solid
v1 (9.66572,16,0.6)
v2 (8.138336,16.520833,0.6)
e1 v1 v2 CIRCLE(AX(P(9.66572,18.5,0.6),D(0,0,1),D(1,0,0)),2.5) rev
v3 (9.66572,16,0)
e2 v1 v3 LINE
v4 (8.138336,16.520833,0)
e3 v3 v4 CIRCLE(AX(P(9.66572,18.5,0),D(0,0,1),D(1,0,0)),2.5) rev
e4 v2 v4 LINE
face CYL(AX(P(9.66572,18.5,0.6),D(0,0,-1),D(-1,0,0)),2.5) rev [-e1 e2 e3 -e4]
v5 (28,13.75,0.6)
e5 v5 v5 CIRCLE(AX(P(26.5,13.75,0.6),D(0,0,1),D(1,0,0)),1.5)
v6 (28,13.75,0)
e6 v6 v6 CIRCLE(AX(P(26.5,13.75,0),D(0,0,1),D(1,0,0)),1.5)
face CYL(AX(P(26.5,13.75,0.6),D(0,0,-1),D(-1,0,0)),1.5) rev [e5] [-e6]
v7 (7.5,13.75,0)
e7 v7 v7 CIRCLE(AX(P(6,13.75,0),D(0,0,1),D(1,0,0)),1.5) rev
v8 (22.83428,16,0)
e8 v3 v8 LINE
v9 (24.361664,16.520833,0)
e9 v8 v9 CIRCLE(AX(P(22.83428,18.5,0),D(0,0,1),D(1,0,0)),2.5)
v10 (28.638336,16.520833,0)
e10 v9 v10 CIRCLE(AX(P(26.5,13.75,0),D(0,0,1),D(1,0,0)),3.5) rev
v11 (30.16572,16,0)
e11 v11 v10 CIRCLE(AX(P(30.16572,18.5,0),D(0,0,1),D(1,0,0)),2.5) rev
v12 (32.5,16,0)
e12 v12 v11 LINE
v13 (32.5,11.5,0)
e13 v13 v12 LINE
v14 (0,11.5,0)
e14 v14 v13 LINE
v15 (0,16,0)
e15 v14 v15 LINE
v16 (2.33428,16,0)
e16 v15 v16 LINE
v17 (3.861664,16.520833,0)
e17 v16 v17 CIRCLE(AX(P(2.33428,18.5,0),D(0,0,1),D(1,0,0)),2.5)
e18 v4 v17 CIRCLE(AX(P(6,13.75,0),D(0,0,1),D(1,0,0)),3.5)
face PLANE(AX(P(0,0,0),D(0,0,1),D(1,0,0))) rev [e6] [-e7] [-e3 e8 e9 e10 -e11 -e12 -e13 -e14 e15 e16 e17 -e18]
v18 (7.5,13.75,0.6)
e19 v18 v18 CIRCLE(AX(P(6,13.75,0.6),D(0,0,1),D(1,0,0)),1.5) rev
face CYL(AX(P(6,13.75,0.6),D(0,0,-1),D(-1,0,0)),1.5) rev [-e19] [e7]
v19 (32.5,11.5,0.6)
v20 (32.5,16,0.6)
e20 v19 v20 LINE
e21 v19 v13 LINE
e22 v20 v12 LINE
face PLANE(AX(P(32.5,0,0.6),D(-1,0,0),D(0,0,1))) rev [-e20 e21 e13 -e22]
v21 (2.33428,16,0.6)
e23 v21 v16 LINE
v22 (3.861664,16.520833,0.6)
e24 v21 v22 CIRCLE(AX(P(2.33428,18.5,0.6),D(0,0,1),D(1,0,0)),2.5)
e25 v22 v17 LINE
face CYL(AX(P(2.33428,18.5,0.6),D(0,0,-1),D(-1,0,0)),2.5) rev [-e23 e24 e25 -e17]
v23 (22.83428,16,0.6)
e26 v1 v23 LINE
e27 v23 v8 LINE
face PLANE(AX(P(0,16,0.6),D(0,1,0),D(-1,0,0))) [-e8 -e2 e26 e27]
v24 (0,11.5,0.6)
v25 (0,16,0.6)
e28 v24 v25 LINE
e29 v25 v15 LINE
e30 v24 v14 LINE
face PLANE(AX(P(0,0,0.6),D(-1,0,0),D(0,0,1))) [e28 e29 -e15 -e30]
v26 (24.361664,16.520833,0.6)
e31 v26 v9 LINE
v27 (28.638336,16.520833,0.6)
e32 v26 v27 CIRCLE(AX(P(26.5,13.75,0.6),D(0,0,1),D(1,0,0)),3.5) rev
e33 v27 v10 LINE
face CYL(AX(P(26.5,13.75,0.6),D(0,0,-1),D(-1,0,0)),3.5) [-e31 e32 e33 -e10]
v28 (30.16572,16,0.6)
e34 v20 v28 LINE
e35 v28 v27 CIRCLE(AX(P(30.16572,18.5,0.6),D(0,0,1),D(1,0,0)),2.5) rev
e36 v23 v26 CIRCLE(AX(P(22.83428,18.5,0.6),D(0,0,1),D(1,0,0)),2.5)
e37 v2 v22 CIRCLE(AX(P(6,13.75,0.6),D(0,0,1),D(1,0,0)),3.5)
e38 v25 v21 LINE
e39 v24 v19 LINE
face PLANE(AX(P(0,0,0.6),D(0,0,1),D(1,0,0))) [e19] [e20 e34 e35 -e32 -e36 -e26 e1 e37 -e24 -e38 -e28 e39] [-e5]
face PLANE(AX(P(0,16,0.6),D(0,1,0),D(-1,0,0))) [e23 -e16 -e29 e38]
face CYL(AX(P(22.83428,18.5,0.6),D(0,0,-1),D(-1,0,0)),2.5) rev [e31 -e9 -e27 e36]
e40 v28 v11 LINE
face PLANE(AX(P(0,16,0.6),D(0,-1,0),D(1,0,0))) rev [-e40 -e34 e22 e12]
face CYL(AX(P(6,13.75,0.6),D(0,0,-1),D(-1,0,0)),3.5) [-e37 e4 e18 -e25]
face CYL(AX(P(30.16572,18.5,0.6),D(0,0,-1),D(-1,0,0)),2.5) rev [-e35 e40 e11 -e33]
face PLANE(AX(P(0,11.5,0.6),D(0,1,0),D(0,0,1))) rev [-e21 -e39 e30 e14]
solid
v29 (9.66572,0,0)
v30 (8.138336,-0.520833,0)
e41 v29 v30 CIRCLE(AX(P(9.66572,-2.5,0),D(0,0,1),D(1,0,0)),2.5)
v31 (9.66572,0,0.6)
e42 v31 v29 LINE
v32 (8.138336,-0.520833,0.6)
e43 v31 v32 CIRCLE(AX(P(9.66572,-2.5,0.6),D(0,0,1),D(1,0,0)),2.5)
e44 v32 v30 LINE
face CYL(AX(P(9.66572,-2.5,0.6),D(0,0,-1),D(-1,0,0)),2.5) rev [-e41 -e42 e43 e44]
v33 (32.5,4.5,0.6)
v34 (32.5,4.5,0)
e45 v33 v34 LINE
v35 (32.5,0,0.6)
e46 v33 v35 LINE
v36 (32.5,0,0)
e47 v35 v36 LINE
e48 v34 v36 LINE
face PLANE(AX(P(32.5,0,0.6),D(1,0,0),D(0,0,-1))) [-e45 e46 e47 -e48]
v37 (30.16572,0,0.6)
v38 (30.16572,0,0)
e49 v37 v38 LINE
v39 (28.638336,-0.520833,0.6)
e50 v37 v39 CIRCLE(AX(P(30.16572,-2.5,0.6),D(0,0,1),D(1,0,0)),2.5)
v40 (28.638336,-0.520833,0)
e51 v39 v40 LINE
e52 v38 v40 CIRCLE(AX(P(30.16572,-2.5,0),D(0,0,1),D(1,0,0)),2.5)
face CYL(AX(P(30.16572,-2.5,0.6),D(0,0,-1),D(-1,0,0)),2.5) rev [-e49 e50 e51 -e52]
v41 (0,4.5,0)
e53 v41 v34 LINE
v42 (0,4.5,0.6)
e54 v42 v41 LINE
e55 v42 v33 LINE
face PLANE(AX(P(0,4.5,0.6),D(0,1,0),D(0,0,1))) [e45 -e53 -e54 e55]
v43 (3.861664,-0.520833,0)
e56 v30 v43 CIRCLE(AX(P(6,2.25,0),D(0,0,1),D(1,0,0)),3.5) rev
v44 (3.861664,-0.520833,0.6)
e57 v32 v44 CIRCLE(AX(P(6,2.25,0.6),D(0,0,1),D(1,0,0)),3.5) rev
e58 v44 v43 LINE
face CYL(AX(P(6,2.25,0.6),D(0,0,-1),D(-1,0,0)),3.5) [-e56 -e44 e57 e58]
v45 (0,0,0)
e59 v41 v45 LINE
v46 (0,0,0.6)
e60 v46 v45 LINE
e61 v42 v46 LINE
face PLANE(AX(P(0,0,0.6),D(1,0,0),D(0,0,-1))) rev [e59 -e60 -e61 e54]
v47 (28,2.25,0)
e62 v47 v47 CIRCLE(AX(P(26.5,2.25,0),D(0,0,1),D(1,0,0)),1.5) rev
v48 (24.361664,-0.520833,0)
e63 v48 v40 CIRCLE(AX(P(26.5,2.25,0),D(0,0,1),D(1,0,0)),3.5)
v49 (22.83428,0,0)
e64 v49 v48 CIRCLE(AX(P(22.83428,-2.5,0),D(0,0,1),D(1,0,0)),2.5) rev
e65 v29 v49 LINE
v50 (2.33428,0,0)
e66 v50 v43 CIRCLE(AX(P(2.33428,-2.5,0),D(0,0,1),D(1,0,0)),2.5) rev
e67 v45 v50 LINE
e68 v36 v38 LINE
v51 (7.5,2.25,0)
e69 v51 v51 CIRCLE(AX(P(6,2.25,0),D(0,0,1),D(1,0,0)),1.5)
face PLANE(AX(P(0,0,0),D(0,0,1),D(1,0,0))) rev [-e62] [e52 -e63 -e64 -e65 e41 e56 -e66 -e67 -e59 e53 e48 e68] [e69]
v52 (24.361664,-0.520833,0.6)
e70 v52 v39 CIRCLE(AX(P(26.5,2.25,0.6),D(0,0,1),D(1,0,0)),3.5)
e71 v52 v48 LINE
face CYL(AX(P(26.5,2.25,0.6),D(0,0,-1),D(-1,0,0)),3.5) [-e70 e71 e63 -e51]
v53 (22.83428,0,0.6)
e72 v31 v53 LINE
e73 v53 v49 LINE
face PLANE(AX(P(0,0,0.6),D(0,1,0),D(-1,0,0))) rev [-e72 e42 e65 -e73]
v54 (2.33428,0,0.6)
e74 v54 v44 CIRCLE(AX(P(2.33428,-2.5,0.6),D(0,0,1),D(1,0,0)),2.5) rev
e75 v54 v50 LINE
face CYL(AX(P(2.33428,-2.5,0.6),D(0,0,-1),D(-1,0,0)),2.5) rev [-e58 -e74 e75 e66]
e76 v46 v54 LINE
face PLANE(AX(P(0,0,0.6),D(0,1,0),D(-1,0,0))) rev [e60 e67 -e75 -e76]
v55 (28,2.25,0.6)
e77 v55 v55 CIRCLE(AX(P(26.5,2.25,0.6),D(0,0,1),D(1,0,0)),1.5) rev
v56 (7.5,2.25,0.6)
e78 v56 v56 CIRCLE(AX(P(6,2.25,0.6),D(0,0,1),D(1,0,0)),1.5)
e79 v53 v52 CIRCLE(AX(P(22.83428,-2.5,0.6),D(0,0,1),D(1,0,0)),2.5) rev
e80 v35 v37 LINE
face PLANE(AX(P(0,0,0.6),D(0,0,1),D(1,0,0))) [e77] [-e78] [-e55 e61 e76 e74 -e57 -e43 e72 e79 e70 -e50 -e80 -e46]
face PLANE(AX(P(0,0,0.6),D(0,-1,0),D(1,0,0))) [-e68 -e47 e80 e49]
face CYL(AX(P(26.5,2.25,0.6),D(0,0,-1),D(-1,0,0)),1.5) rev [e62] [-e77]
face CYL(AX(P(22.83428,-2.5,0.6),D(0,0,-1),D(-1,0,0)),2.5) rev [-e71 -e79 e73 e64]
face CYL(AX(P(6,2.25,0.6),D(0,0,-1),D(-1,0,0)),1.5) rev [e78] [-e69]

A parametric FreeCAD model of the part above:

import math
import FreeCAD as App
import Part
import Sketcher
Q = App.Units.Quantity

doc = App.newDocument("Part")
body = doc.addObject("PartDesign::Body", "Body")
body.AllowCompound = True

# Sketch on XY plane
sketch1 = doc.addObject("Sketcher::SketchObject", "Sketch")
body.addObject(sketch1)
sketch1.AttachmentSupport = (doc.XY_Plane, [""])
sketch1.MapMode = "FlatFace"
sketch1.addGeometry(Part.LineSegment(App.Vector(0, 16, 0), App.Vector(0, 11.5, 0)), False)
sketch1.addGeometry(Part.LineSegment(App.Vector(0, 11.5, 0), App.Vector(32.5, 11.5, 0)), False)
sketch1.addGeometry(Part.LineSegment(App.Vector(32.5, 11.5, 0), App.Vector(32.5, 16, 0)), False)
sketch1.addGeometry(Part.LineSegment(App.Vector(32.5, 16, 0), App.Vector(30.16572, 16, 0)), False)
sketch1.addGeometry(Part.ArcOfCircle(Part.Circle(App.Vector(30.16572, 18.500001, 0), App.Vector(0, 0, 1), 2.500001), math.radians(-91.628064), math.radians(-90.000001)), False)
sketch1.addGeometry(Part.ArcOfCircle(Part.Circle(App.Vector(30.16572, 18.5, 0), App.Vector(0, 0, 1), 2.5), math.radians(-127.658462), math.radians(-91.628065)), False)
sketch1.addGeometry(Part.ArcOfCircle(Part.Circle(App.Vector(26.5, 13.75, 0), App.Vector(0, 0, 1), 3.5), math.radians(52.341538), math.radians(68.84335)), False)
sketch1.addGeometry(Part.ArcOfCircle(Part.Circle(App.Vector(26.5, 13.75, 0), App.Vector(0, 0, 1), 3.5), math.radians(68.84335), math.radians(127.658462)), False)
sketch1.addGeometry(Part.ArcOfCircle(Part.Circle(App.Vector(22.83428, 18.5, 0), App.Vector(0, 0, 1), 2.5), math.radians(-71.170769), math.radians(-52.341538)), False)
sketch1.addGeometry(Part.ArcOfCircle(Part.Circle(App.Vector(22.83428, 18.5, 0), App.Vector(0, 0, 1), 2.5), math.radians(-90), math.radians(-71.170769)), False)
sketch1.addGeometry(Part.LineSegment(App.Vector(22.83428, 16, 0), App.Vector(9.66572, 16, 0)), False)
sketch1.addGeometry(Part.ArcOfCircle(Part.Circle(App.Vector(9.66572, 18.5, 0), App.Vector(0, 0, 1), 2.5), math.radians(-108.829231), math.radians(-90)), False)
sketch1.addGeometry(Part.ArcOfCircle(Part.Circle(App.Vector(9.66572, 18.5, 0), App.Vector(0, 0, 1), 2.5), math.radians(-127.658462), math.radians(-108.829231)), False)
sketch1.addGeometry(Part.ArcOfCircle(Part.Circle(App.Vector(6, 13.75, 0), App.Vector(0, 0, 1), 3.5), math.radians(52.341538), math.radians(111.15665)), False)
sketch1.addGeometry(Part.ArcOfCircle(Part.Circle(App.Vector(6, 13.75, 0), App.Vector(0, 0, 1), 3.5), math.radians(111.15665), math.radians(127.658462)), False)
sketch1.addGeometry(Part.ArcOfCircle(Part.Circle(App.Vector(2.33428, 18.5, 0), App.Vector(0, 0, 1), 2.5), math.radians(-88.371935), math.radians(-52.341538)), False)
sketch1.addGeometry(Part.ArcOfCircle(Part.Circle(App.Vector(2.33428, 18.500001, 0), App.Vector(0, 0, 1), 2.500001), math.radians(-89.999999), math.radians(-88.371936)), False)
sketch1.addGeometry(Part.LineSegment(App.Vector(2.33428, 16, 0), App.Vector(0, 16, 0)), False)
sketch1.addGeometry(Part.Circle(App.Vector(6, 13.75, 0), App.Vector(0, 0, 1), 1.5), False)
sketch1.addGeometry(Part.Circle(App.Vector(26.5, 13.75, 0), App.Vector(0, 0, 1), 1.5), False)
sketch1.addGeometry(Part.LineSegment(App.Vector(0, 4.5, 0), App.Vector(0, 0, 0)), False)
sketch1.addGeometry(Part.LineSegment(App.Vector(0, 0, 0), App.Vector(2.33428, 0, 0)), False)
sketch1.addGeometry(Part.ArcOfCircle(Part.Circle(App.Vector(2.33428, -2.500001, 0), App.Vector(0, 0, 1), 2.500001), math.radians(88.371936), math.radians(89.999999)), False)
sketch1.addGeometry(Part.ArcOfCircle(Part.Circle(App.Vector(2.33428, -2.5, 0), App.Vector(0, 0, 1), 2.5), math.radians(52.341538), math.radians(88.371935)), False)
sketch1.addGeometry(Part.ArcOfCircle(Part.Circle(App.Vector(6, 2.25, 0), App.Vector(0, 0, 1), 3.5), math.radians(-127.658462), math.radians(-111.15665)), False)
sketch1.addGeometry(Part.ArcOfCircle(Part.Circle(App.Vector(6, 2.25, 0), App.Vector(0, 0, 1), 3.5), math.radians(-111.15665), math.radians(-52.341538)), False)
sketch1.addGeometry(Part.ArcOfCircle(Part.Circle(App.Vector(9.66572, -2.5, 0), App.Vector(0, 0, 1), 2.5), math.radians(108.829231), math.radians(127.658462)), False)
sketch1.addGeometry(Part.ArcOfCircle(Part.Circle(App.Vector(9.66572, -2.5, 0), App.Vector(0, 0, 1), 2.5), math.radians(90), math.radians(108.829231)), False)
sketch1.addGeometry(Part.LineSegment(App.Vector(9.66572, 0, 0), App.Vector(22.83428, 0, 0)), False)
sketch1.addGeometry(Part.ArcOfCircle(Part.Circle(App.Vector(22.83428, -2.5, 0), App.Vector(0, 0, 1), 2.5), math.radians(71.170769), math.radians(90)), False)
sketch1.addGeometry(Part.ArcOfCircle(Part.Circle(App.Vector(22.83428, -2.5, 0), App.Vector(0, 0, 1), 2.5), math.radians(52.341538), math.radians(71.170769)), False)
sketch1.addGeometry(Part.ArcOfCircle(Part.Circle(App.Vector(26.5, 2.25, 0), App.Vector(0, 0, 1), 3.5), math.radians(-127.658462), math.radians(-68.84335)), False)
sketch1.addGeometry(Part.ArcOfCircle(Part.Circle(App.Vector(26.5, 2.25, 0), App.Vector(0, 0, 1), 3.5), math.radians(-68.84335), math.radians(-52.341538)), False)
sketch1.addGeometry(Part.ArcOfCircle(Part.Circle(App.Vector(30.16572, -2.5, 0), App.Vector(0, 0, 1), 2.5), math.radians(91.628065), math.radians(127.658462)), False)
sketch1.addGeometry(Part.ArcOfCircle(Part.Circle(App.Vector(30.16572, -2.500001, 0), App.Vector(0, 0, 1), 2.500001), math.radians(90.000001), math.radians(91.628064)), False)
sketch1.addGeometry(Part.LineSegment(App.Vector(30.16572, 0, 0), App.Vector(32.5, 0, 0)), False)
sketch1.addGeometry(Part.LineSegment(App.Vector(32.5, 0, 0), App.Vector(32.5, 4.5, 0)), False)
sketch1.addGeometry(Part.LineSegment(App.Vector(32.5, 4.5, 0), App.Vector(0, 4.5, 0)), False)
sketch1.addGeometry(Part.Circle(App.Vector(6, 2.25, 0), App.Vector(0, 0, 1), 1.5), False)
sketch1.addGeometry(Part.Circle(App.Vector(26.5, 2.25, 0), App.Vector(0, 0, 1), 1.5), False)
sketch1.addConstraint(Sketcher.Constraint("Coincident", 0, 2, 1, 1))
sketch1.addConstraint(Sketcher.Constraint("Coincident", 1, 2, 2, 1))
sketch1.addConstraint(Sketcher.Constraint("Coincident", 2, 2, 3, 1))
sketch1.addConstraint(Sketcher.Constraint("Tangent", 3, 2, 4, 2))
sketch1.addConstraint(Sketcher.Constraint("Tangent", 4, 1, 5, 2))
sketch1.addConstraint(Sketcher.Constraint("Tangent", 5, 1, 6, 1))
sketch1.addConstraint(Sketcher.Constraint("Tangent", 6, 2, 7, 1))
sketch1.addConstraint(Sketcher.Constraint("Tangent", 7, 2, 8, 2))
sketch1.addConstraint(Sketcher.Constraint("Tangent", 8, 1, 9, 2))
sketch1.addConstraint(Sketcher.Constraint("Tangent", 9, 1, 10, 1))
sketch1.addConstraint(Sketcher.Constraint("Tangent", 10, 2, 11, 2))
sketch1.addConstraint(Sketcher.Constraint("Tangent", 11, 1, 12, 2))
sketch1.addConstraint(Sketcher.Constraint("Tangent", 12, 1, 13, 1))
sketch1.addConstraint(Sketcher.Constraint("Tangent", 13, 2, 14, 1))
sketch1.addConstraint(Sketcher.Constraint("Tangent", 14, 2, 15, 2))
sketch1.addConstraint(Sketcher.Constraint("Tangent", 15, 1, 16, 2))
sketch1.addConstraint(Sketcher.Constraint("Tangent", 16, 1, 17, 1))
sketch1.addConstraint(Sketcher.Constraint("Coincident", 17, 2, 0, 1))
sketch1.addConstraint(Sketcher.Constraint("Coincident", 20, 2, 21, 1))
sketch1.addConstraint(Sketcher.Constraint("Tangent", 21, 2, 22, 2))
sketch1.addConstraint(Sketcher.Constraint("Tangent", 22, 1, 23, 2))
sketch1.addConstraint(Sketcher.Constraint("Tangent", 23, 1, 24, 1))
sketch1.addConstraint(Sketcher.Constraint("Tangent", 24, 2, 25, 1))
sketch1.addConstraint(Sketcher.Constraint("Tangent", 25, 2, 26, 2))
sketch1.addConstraint(Sketcher.Constraint("Tangent", 26, 1, 27, 2))
sketch1.addConstraint(Sketcher.Constraint("Tangent", 27, 1, 28, 1))
sketch1.addConstraint(Sketcher.Constraint("Tangent", 28, 2, 29, 2))
sketch1.addConstraint(Sketcher.Constraint("Tangent", 29, 1, 30, 2))
sketch1.addConstraint(Sketcher.Constraint("Tangent", 30, 1, 31, 1))
sketch1.addConstraint(Sketcher.Constraint("Tangent", 31, 2, 32, 1))
sketch1.addConstraint(Sketcher.Constraint("Tangent", 32, 2, 33, 2))
sketch1.addConstraint(Sketcher.Constraint("Tangent", 33, 1, 34, 2))
sketch1.addConstraint(Sketcher.Constraint("Tangent", 34, 1, 35, 1))
sketch1.addConstraint(Sketcher.Constraint("Coincident", 35, 2, 36, 1))
sketch1.addConstraint(Sketcher.Constraint("Coincident", 36, 2, 37, 1))
sketch1.addConstraint(Sketcher.Constraint("Coincident", 37, 2, 20, 1))
sketch1.addConstraint(Sketcher.Constraint("Vertical", 0))
sketch1.addConstraint(Sketcher.Constraint("Horizontal", 1))
sketch1.addConstraint(Sketcher.Constraint("Vertical", 2))
sketch1.addConstraint(Sketcher.Constraint("Horizontal", 3))
sketch1.addConstraint(Sketcher.Constraint("Horizontal", 10))
sketch1.addConstraint(Sketcher.Constraint("Horizontal", 17))
sketch1.addConstraint(Sketcher.Constraint("Vertical", 20))
sketch1.addConstraint(Sketcher.Constraint("Horizontal", 21))
sketch1.addConstraint(Sketcher.Constraint("Horizontal", 28))
sketch1.addConstraint(Sketcher.Constraint("Horizontal", 35))
sketch1.addConstraint(Sketcher.Constraint("Vertical", 36))
sketch1.addConstraint(Sketcher.Constraint("Horizontal", 37))
sketch1.addConstraint(Sketcher.Constraint("Coincident", 20, 2, -1, 1))
sketch1.addConstraint(Sketcher.Constraint("Coincident", 18, 3, 13, 3))
sketch1.addConstraint(Sketcher.Constraint("Coincident", 19, 3, 6, 3))
sketch1.addConstraint(Sketcher.Constraint("Coincident", 38, 3, 24, 3))
sketch1.addConstraint(Sketcher.Constraint("Coincident", 39, 3, 31, 3))
sketch1.addConstraint(Sketcher.Constraint("Equal", 4, 5))
sketch1.addConstraint(Sketcher.Constraint("Equal", 6, 7))
sketch1.addConstraint(Sketcher.Constraint("Equal", 5, 8))
sketch1.addConstraint(Sketcher.Constraint("Equal", 8, 9))
sketch1.addConstraint(Sketcher.Constraint("Equal", 9, 11))
sketch1.addConstraint(Sketcher.Constraint("Equal", 11, 12))
sketch1.addConstraint(Sketcher.Constraint("Equal", 7, 13))
sketch1.addConstraint(Sketcher.Constraint("Equal", 13, 14))
sketch1.addConstraint(Sketcher.Constraint("Equal", 12, 15))
sketch1.addConstraint(Sketcher.Constraint("Equal", 15, 16))
sketch1.addConstraint(Sketcher.Constraint("Equal", 18, 19))
sketch1.addConstraint(Sketcher.Constraint("Equal", 16, 22))
sketch1.addConstraint(Sketcher.Constraint("Equal", 22, 23))
sketch1.addConstraint(Sketcher.Constraint("Equal", 14, 24))
sketch1.addConstraint(Sketcher.Constraint("Equal", 24, 25))
sketch1.addConstraint(Sketcher.Constraint("Equal", 23, 26))
sketch1.addConstraint(Sketcher.Constraint("Equal", 26, 27))
sketch1.addConstraint(Sketcher.Constraint("Equal", 27, 29))
sketch1.addConstraint(Sketcher.Constraint("Equal", 29, 30))
sketch1.addConstraint(Sketcher.Constraint("Equal", 25, 31))
sketch1.addConstraint(Sketcher.Constraint("Equal", 31, 32))
sketch1.addConstraint(Sketcher.Constraint("Equal", 30, 33))
sketch1.addConstraint(Sketcher.Constraint("Equal", 33, 34))
sketch1.addConstraint(Sketcher.Constraint("Equal", 19, 38))
sketch1.addConstraint(Sketcher.Constraint("Equal", 38, 39))
sketch1.addConstraint(Sketcher.Constraint("PointOnObject", 0, 2, -2))
sketch1.addConstraint(Sketcher.Constraint("PointOnObject", 27, 1, -1))
sketch1.addConstraint(Sketcher.Constraint("PointOnObject", 34, 1, -1))
sketch1.addConstraint(Sketcher.Constraint("Horizontal", 5, 3, 8, 3))
sketch1.addConstraint(Sketcher.Constraint("Horizontal", 7, 3, 13, 3))
sketch1.addConstraint(Sketcher.Constraint("Horizontal", 12, 3, 15, 3))
sketch1.addConstraint(Sketcher.Constraint("Horizontal", 25, 3, 31, 3))
sketch1.addConstraint(Sketcher.Constraint("Horizontal", 8, 1, 11, 1))
sketch1.addConstraint(Sketcher.Constraint("Horizontal", 6, 2, 13, 2))
sketch1.addConstraint(Sketcher.Constraint("Horizontal", 4, 1, 15, 1))
sketch1.addConstraint(Sketcher.Constraint("Horizontal", 26, 1, 29, 1))
sketch1.addConstraint(Sketcher.Constraint("Horizontal", 24, 2, 31, 2))
sketch1.addConstraint(Sketcher.Constraint("Horizontal", 22, 1, 33, 1))
sketch1.addConstraint(Sketcher.Constraint("Vertical", 16, 3, 22, 3))
sketch1.addConstraint(Sketcher.Constraint("Vertical", 18, 3, 24, 3))
sketch1.addConstraint(Sketcher.Constraint("Vertical", 9, 3, 29, 3))
sketch1.addConstraint(Sketcher.Constraint("Vertical", 15, 1, 22, 1))
sketch1.addConstraint(Sketcher.Constraint("Vertical", 13, 2, 24, 2))
sketch1.addConstraint(Sketcher.Constraint("Vertical", 11, 1, 26, 1))
sketch1.addConstraint(Sketcher.Constraint("Vertical", 2, 2, 35, 2))
sketch1.addConstraint(Sketcher.Constraint("Equal", 3, 17))
sketch1.addConstraint(Sketcher.Constraint("Equal", 2, 20))
sketch1.addConstraint(Sketcher.Constraint("Diameter", 18, Q("3 mm")))
sketch1.addConstraint(Sketcher.Constraint("Radius", 4, Q("2.500001 mm")))
sketch1.addConstraint(Sketcher.Constraint("Radius", 6, Q("3.5 mm")))
sketch1.addConstraint(Sketcher.Constraint("DistanceX", 1, 1, 1, 2, Q("32.5 mm")))
sketch1.addConstraint(Sketcher.Constraint("DistanceY", 0, 2, 0, 1, Q("4.5 mm")))
sketch1.addConstraint(Sketcher.Constraint("DistanceX", -1, 1, 13, 3, Q("6 mm")))
sketch1.addConstraint(Sketcher.Constraint("DistanceY", -1, 1, 2, 2, Q("16 mm")))
sketch1.addConstraint(Sketcher.Constraint("DistanceY", -1, 1, 6, 3, Q("13.75 mm")))
sketch1.addConstraint(Sketcher.Constraint("DistanceX", -1, 1, 4, 1, Q("30.094691 mm")))
sketch1.addConstraint(Sketcher.Constraint("DistanceY", -1, 1, 6, 2, Q("17.01409 mm")))
sketch1.addConstraint(Sketcher.Constraint("DistanceX", -1, 1, 8, 1, Q("23.641152 mm")))
pad1 = doc.addObject("PartDesign::Pad", "Pad")
body.addObject(pad1)
pad1.Profile = sketch1
pad1.Length = 0.6

doc.recompute()
